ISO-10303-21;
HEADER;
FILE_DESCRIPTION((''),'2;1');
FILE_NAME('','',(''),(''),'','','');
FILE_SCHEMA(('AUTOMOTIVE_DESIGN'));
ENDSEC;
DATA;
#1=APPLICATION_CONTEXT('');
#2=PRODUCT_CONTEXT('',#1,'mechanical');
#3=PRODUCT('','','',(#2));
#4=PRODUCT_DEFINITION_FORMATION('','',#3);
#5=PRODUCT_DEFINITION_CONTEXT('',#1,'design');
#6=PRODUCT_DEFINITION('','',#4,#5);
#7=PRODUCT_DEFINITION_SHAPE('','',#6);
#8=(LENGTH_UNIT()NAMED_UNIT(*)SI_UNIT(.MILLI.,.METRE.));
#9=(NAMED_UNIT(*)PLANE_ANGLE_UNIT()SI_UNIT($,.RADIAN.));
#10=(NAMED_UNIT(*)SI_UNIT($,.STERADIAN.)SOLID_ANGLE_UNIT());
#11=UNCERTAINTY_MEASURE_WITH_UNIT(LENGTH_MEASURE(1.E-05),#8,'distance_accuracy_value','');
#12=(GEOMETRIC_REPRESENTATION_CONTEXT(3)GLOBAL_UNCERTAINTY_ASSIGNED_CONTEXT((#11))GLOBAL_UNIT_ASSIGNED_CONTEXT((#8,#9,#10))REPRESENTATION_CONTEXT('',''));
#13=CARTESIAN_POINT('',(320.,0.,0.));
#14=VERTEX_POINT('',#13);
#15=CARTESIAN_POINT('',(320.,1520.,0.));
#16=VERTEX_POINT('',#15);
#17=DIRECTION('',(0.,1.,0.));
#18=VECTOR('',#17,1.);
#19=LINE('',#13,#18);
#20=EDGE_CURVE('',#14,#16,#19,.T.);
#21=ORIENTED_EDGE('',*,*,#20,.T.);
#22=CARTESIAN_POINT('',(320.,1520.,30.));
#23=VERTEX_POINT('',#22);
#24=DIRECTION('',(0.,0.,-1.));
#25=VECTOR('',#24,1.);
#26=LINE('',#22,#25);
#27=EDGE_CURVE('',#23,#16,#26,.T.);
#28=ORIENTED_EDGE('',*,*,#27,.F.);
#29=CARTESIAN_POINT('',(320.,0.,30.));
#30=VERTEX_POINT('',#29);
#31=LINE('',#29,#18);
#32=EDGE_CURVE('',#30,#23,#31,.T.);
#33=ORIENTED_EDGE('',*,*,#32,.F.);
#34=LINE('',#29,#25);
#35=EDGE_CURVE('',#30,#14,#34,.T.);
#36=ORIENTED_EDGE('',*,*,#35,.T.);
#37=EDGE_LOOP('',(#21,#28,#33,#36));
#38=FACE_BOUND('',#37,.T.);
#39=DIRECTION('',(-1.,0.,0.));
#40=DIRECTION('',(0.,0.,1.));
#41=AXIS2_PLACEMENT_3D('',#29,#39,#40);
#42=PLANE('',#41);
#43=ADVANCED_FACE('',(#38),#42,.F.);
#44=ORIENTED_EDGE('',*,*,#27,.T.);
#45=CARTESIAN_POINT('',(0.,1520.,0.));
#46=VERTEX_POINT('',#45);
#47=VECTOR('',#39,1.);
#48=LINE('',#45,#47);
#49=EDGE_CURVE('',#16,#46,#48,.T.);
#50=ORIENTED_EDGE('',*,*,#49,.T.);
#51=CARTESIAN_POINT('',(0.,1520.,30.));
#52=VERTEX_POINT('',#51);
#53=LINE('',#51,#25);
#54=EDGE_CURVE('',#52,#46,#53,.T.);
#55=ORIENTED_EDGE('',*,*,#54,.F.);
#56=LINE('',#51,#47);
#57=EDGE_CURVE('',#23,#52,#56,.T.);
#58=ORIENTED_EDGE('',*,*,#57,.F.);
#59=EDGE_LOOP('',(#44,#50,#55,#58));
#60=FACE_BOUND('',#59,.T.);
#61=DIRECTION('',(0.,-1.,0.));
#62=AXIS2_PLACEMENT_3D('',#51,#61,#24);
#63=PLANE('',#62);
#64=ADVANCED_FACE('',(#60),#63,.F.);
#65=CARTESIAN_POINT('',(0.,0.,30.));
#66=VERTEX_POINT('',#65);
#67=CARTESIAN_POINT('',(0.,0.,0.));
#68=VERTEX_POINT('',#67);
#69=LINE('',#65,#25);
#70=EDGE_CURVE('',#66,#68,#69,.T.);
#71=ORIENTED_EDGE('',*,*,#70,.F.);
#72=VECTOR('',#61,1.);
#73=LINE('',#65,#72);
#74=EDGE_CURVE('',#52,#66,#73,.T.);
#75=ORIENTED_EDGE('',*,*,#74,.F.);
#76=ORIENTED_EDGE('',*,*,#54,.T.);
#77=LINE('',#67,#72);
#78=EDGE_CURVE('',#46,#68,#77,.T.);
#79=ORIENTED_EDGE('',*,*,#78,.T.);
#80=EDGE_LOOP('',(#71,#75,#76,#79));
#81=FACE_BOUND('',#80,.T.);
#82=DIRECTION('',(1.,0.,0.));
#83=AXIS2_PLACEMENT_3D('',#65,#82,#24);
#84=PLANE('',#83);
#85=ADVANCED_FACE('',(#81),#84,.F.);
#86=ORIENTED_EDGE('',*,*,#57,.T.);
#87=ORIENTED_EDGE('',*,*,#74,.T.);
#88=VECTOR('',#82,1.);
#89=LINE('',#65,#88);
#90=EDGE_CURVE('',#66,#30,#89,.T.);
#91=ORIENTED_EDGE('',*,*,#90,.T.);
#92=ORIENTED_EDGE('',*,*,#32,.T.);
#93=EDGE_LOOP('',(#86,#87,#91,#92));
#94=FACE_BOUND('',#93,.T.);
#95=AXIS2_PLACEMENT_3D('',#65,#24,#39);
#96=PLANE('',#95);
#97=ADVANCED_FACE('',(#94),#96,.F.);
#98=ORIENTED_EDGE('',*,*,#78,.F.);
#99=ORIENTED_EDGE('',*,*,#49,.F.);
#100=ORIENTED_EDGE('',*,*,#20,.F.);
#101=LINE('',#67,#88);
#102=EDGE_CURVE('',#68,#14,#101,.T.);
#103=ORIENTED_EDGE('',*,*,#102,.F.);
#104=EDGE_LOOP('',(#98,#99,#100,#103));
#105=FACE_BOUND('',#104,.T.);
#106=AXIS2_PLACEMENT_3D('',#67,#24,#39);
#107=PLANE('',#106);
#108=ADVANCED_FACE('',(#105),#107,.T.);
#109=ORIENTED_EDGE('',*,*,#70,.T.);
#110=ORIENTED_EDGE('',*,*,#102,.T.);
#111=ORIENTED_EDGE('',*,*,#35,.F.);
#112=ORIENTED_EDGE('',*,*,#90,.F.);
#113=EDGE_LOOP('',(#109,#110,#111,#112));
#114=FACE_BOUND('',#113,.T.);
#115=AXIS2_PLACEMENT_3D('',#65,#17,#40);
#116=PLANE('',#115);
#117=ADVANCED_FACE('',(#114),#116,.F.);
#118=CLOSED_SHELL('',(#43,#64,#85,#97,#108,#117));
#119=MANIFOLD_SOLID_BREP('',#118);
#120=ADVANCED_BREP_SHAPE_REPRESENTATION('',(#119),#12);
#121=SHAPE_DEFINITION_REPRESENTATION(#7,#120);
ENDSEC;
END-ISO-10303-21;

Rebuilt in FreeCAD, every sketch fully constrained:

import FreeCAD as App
import Part
import Sketcher
from FreeCAD import Vector
Q = App.Units.Quantity


def add_polygon(sketch, points):
    """Adds a closed chain of lines whose ends are joined by coincident constraints."""
    first, n = sketch.GeometryCount, len(points)
    for a, b in zip(points, points[1:] + points[:1]):
        sketch.addGeometry(Part.LineSegment(App.Vector(*a, 0), App.Vector(*b, 0)), False)
    for i in range(n):
        sketch.addConstraint(Sketcher.Constraint("Coincident", first + i, 2, first + (i + 1) % n, 1))

doc = App.newDocument("Part")
body = doc.addObject("PartDesign::Body", "Body")

sketch1 = body.newObject("Sketcher::SketchObject", "Sketch")
sketch1.AttachmentSupport = (doc.getObject("XY_Plane"), [""])
sketch1.MapMode = "FlatFace"
add_polygon(sketch1, [(0, 1520), (0, 0), (320, 0), (320, 1520)])
sketch1.addConstraint(Sketcher.Constraint("Vertical", 0))
sketch1.addConstraint(Sketcher.Constraint("Horizontal", 1))
sketch1.addConstraint(Sketcher.Constraint("Vertical", 2))
sketch1.addConstraint(Sketcher.Constraint("Horizontal", 3))
sketch1.addConstraint(Sketcher.Constraint("Coincident", 0, 2, -1, 1))
sketch1.addConstraint(Sketcher.Constraint("DistanceX", 1, 1, 1, 2, Q("320 mm")))
sketch1.addConstraint(Sketcher.Constraint("DistanceY", 0, 2, 0, 1, Q("1520 mm")))
pad1 = body.newObject("PartDesign::Pad", "Pad")
pad1.Profile = sketch1
pad1.Length = 30

doc.recompute()
